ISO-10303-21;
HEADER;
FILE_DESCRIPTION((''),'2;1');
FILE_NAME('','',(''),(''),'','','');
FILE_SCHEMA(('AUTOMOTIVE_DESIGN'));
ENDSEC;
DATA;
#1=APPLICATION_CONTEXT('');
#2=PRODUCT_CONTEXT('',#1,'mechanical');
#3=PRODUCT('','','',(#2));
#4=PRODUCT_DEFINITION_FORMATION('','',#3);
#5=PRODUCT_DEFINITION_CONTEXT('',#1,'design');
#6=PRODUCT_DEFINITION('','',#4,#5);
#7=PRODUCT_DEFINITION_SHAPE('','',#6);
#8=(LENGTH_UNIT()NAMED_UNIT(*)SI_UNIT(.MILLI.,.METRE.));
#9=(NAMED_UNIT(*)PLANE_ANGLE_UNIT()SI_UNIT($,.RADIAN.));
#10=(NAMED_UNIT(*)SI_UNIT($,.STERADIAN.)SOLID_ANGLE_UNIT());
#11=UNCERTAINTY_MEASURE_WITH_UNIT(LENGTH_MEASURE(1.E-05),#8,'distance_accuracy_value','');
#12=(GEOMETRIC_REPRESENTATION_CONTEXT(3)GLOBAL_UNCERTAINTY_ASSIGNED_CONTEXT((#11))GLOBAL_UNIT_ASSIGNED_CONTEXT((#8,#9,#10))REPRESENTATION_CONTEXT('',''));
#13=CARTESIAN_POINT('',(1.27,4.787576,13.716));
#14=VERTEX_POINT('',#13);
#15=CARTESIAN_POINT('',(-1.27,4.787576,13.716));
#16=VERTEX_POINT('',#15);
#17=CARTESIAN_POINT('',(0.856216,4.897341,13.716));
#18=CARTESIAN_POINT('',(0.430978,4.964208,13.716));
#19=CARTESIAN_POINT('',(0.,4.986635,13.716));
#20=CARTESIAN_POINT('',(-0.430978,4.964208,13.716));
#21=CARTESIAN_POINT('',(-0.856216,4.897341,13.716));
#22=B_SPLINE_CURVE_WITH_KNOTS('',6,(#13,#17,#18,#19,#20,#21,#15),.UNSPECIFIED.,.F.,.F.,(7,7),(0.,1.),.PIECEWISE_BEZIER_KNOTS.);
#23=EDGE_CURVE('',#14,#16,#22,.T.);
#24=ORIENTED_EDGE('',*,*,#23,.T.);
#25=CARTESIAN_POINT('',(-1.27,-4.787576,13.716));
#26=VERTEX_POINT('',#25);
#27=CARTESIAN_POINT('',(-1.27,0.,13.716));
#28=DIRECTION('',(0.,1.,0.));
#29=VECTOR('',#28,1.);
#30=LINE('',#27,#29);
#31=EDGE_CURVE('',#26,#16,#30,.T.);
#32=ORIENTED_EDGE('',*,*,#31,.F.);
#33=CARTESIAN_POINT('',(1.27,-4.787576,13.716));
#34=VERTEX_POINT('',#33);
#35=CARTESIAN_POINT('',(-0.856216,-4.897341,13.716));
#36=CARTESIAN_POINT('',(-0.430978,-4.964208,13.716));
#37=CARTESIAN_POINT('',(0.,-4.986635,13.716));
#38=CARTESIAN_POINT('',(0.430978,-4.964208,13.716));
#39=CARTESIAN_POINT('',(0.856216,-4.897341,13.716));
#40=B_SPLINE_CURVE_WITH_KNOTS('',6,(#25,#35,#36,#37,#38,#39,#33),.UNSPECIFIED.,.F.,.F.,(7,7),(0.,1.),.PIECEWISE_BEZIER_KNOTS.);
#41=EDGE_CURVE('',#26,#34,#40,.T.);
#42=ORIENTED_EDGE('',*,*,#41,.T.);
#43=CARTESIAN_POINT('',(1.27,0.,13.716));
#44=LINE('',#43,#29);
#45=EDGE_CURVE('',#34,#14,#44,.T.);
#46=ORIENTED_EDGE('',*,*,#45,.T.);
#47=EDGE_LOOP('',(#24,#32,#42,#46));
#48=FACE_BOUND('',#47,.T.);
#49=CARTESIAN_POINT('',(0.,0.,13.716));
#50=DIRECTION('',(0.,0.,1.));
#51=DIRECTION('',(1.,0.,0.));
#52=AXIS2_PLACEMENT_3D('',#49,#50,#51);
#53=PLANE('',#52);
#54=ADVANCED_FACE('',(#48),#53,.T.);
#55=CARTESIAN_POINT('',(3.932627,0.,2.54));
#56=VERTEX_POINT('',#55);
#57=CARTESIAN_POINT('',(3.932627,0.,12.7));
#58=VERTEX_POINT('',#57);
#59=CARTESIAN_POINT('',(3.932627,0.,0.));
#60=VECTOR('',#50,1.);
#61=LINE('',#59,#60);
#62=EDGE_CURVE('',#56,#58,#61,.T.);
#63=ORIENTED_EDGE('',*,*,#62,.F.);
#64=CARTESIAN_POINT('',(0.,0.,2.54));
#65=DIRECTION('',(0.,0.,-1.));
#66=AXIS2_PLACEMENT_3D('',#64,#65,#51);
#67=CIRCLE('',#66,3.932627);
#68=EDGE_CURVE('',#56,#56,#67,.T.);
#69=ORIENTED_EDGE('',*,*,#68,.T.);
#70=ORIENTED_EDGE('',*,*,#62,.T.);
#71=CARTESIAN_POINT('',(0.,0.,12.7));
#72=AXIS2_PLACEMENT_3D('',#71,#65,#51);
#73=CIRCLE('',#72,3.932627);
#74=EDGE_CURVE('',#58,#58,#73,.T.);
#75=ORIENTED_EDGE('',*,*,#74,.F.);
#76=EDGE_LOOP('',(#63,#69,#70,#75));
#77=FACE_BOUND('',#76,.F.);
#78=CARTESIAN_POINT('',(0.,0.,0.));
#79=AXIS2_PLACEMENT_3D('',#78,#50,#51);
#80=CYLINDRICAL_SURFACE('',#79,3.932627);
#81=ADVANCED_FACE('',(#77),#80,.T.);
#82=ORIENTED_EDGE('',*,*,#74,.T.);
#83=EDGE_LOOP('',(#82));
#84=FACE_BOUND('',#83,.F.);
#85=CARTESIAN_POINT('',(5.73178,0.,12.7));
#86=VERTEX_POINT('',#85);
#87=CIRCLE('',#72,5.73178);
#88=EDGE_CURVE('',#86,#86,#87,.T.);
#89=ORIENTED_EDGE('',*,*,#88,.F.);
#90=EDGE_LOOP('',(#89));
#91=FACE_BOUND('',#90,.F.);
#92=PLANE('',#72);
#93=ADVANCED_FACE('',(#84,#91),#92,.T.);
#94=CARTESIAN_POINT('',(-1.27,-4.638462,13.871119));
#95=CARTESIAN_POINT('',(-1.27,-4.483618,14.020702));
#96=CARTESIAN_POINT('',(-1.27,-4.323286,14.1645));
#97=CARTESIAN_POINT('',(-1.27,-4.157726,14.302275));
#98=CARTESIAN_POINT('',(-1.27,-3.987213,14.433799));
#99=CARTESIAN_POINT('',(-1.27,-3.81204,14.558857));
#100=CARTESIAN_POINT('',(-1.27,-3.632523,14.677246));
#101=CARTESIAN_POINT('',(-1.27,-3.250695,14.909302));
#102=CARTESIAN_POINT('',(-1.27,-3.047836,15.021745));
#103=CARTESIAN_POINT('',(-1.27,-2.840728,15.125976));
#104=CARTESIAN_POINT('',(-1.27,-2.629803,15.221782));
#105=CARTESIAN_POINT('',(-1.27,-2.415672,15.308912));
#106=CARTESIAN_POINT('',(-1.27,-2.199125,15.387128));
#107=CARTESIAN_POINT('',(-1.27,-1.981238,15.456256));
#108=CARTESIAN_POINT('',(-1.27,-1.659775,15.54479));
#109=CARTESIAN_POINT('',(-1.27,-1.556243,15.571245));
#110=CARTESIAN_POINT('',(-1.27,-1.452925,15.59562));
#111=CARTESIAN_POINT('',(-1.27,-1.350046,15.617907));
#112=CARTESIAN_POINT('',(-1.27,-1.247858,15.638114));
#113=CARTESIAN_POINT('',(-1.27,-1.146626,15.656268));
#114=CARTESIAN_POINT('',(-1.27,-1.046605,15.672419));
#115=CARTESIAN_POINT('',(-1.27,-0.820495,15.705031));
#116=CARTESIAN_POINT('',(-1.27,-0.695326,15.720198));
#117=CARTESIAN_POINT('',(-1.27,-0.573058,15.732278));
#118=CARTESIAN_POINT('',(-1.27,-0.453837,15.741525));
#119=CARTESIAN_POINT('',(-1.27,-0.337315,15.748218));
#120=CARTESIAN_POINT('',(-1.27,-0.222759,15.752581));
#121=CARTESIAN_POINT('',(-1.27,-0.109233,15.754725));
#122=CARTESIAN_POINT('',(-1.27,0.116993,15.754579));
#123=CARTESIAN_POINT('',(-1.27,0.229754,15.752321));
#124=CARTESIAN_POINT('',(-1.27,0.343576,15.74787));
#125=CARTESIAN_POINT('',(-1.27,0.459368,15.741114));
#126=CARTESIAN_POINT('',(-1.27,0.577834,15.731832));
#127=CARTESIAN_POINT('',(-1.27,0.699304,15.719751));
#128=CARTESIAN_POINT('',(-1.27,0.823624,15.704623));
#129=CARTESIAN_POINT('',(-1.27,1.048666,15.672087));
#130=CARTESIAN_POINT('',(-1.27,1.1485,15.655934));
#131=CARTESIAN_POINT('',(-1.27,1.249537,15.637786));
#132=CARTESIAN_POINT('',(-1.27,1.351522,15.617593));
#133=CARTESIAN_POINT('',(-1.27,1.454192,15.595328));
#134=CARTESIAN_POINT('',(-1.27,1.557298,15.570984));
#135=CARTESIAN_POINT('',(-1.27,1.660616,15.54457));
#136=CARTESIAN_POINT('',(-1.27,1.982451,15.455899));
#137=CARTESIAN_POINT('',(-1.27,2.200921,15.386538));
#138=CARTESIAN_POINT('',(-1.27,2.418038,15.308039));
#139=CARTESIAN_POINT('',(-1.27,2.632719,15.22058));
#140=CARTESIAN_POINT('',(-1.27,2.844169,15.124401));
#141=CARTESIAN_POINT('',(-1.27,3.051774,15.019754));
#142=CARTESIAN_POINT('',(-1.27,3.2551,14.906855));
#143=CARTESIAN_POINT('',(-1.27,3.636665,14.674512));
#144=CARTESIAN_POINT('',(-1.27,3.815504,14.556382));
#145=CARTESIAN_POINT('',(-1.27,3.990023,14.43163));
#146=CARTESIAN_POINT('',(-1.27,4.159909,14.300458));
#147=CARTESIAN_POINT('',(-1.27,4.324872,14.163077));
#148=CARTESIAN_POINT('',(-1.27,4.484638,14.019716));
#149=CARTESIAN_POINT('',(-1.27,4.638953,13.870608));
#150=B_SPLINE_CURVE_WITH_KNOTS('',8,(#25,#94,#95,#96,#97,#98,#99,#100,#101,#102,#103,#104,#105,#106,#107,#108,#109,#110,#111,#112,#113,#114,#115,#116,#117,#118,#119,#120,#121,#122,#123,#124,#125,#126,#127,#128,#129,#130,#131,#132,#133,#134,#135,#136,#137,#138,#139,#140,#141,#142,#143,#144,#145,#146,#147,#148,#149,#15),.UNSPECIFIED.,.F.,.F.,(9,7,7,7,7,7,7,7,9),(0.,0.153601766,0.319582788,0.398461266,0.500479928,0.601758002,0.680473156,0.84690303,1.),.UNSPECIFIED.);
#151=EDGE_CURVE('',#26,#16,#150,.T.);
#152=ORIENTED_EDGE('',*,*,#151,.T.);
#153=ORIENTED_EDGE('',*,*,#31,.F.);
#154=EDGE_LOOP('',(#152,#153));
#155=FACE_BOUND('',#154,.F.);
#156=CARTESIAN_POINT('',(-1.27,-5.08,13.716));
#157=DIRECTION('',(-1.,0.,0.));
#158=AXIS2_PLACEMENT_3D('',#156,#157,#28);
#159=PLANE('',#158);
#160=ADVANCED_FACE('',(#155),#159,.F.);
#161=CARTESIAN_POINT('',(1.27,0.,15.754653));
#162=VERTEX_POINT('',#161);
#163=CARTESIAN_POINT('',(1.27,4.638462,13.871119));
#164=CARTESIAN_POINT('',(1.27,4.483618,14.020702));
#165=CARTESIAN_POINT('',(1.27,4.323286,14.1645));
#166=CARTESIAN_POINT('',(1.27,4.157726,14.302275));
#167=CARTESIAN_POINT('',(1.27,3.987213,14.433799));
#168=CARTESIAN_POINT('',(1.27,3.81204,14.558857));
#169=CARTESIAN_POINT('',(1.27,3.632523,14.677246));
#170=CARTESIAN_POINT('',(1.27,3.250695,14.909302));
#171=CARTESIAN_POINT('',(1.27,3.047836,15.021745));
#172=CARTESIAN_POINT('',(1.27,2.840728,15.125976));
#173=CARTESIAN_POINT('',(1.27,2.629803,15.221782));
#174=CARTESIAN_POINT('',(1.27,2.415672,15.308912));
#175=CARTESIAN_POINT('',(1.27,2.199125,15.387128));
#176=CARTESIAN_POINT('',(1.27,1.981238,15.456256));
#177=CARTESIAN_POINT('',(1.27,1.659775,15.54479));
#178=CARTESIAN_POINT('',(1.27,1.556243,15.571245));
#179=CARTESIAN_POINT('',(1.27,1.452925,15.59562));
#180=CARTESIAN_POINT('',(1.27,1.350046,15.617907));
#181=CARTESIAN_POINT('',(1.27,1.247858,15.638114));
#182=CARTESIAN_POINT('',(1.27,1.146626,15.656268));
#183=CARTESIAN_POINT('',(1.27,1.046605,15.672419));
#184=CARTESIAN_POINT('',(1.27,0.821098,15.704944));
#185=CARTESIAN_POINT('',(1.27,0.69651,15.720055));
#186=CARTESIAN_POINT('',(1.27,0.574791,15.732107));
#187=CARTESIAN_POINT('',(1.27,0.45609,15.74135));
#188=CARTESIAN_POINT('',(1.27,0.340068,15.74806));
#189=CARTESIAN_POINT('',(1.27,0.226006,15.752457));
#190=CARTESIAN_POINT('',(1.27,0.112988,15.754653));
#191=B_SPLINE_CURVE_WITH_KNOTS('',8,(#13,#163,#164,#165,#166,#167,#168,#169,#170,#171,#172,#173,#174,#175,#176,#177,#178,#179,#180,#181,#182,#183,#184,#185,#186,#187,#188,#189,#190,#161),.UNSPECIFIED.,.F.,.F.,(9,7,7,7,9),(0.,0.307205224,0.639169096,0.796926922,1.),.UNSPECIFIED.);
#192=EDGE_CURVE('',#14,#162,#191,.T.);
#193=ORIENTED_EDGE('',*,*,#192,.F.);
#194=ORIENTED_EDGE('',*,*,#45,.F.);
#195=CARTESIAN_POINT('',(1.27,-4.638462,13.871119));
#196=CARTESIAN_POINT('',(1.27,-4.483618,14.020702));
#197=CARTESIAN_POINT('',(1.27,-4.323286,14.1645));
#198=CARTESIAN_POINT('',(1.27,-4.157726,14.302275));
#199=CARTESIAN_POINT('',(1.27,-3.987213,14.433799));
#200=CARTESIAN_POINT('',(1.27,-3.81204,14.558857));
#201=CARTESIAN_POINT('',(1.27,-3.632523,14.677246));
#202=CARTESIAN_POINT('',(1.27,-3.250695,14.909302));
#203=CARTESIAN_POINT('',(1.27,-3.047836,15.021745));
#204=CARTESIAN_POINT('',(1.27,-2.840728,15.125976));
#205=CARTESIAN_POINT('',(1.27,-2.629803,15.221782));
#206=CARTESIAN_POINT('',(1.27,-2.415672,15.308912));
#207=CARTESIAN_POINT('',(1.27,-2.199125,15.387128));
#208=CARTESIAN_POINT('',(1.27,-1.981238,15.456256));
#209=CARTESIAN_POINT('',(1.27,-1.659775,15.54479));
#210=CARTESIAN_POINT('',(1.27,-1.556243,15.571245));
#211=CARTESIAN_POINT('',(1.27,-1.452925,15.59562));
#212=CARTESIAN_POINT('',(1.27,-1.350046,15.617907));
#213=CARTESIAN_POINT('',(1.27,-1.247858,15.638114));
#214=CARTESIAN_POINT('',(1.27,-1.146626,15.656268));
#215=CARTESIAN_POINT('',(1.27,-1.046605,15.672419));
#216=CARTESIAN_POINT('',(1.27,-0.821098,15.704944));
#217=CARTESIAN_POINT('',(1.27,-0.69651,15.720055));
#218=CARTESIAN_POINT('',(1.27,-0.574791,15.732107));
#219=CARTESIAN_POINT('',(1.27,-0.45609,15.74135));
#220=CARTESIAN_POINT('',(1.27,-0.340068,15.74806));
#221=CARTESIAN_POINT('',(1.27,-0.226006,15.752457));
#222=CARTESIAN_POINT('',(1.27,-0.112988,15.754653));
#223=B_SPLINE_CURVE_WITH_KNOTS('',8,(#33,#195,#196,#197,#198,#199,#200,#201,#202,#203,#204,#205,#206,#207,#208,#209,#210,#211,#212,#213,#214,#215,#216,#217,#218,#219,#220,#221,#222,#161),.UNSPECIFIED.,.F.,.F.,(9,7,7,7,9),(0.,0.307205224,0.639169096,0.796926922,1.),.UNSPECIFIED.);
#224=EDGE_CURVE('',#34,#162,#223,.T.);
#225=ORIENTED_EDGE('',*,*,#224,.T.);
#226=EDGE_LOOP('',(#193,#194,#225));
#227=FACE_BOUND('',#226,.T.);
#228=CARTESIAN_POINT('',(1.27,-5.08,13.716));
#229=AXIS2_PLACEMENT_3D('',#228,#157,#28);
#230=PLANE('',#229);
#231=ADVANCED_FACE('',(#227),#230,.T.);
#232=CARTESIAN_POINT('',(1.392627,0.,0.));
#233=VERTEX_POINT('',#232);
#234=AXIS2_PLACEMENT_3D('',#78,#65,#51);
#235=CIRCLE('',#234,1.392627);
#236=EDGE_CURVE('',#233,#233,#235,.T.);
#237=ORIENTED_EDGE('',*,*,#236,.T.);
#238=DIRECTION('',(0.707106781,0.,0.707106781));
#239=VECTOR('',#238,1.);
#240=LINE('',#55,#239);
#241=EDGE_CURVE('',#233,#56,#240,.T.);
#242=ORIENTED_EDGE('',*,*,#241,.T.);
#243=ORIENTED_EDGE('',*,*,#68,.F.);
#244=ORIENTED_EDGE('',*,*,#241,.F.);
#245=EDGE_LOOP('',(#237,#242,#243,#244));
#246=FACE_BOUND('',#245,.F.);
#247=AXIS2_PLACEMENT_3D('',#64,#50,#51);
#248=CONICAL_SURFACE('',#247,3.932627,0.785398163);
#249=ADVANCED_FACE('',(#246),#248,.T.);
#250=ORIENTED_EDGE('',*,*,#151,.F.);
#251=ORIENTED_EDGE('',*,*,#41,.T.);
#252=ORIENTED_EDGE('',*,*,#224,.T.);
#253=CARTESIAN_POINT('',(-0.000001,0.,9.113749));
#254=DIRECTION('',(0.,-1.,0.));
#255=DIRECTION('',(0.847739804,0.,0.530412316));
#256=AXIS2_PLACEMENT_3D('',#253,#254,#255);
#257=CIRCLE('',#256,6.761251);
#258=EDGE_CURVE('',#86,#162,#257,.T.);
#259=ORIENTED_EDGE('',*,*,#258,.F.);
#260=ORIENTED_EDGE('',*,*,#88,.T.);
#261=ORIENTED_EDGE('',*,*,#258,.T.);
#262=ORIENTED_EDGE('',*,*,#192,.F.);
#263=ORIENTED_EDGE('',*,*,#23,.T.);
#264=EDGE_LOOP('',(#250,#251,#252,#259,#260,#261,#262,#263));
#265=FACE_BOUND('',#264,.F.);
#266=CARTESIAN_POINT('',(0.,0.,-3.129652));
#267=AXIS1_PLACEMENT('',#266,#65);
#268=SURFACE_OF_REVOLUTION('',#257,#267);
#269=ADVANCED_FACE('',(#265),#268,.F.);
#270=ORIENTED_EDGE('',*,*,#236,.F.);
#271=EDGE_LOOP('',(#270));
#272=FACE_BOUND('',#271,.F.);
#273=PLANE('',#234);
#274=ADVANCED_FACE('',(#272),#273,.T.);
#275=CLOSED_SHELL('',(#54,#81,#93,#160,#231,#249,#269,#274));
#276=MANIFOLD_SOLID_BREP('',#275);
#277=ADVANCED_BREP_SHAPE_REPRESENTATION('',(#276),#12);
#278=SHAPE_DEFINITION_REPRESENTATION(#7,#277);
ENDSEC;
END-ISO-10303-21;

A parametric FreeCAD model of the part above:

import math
import FreeCAD as App
import Part
import Sketcher

V = App.Vector
Q = App.Units.Quantity


def edges_at(feature, points):
    """Names of the edges that pass closest to the given points."""
    edges = feature.Shape.Edges
    near = lambda p: min(range(len(edges)), key=lambda i: edges[i].distToShape(Part.Vertex(*p))[0])
    return sorted({f"Edge{near(p) + 1}" for p in points})


def add_polygon(sketch, points):
    """Adds a closed chain of lines whose ends are joined by coincident constraints."""
    first, n = sketch.GeometryCount, len(points)
    for a, b in zip(points, points[1:] + points[:1]):
        sketch.addGeometry(Part.LineSegment(App.Vector(*a, 0), App.Vector(*b, 0)), False)
    for i in range(n):
        sketch.addConstraint(Sketcher.Constraint("Coincident", first + i, 2, first + (i + 1) % n, 1))

doc = App.newDocument("Part")
body = doc.addObject("PartDesign::Body", "Body")

# Sketch on XZ plane
sketch1 = doc.addObject("Sketcher::SketchObject", "Sketch")
body.addObject(sketch1)
sketch1.AttachmentSupport = (doc.XZ_Plane, [""])
sketch1.MapMode = "FlatFace"
sketch1.addGeometry([
    Part.LineSegment(V(0, 0, 0), V(3.9, 0, 0)),  # 0
    Part.LineSegment(V(3.9, 0, 0), V(3.9, 12.7, 0)),  # 1
    Part.LineSegment(V(3.9, 12.7, 0), V(5.7, 12.7, 0)),  # 2
    Part.ArcOfCircle(Part.Circle(V(0, 9.1, 0), V(0, 0, 1), 6.8), math.radians(32), math.radians(90)),  # 3
    Part.LineSegment(V(0, 15.9, 0), V(0, 0, 0)),  # 4
], False)
sketch1.addConstraint([
    Sketcher.Constraint("Coincident", 0, 2, 1, 1),
    Sketcher.Constraint("Coincident", 1, 2, 2, 1),
    Sketcher.Constraint("Coincident", 2, 2, 3, 1),
    Sketcher.Constraint("Coincident", 3, 2, 4, 1),
    Sketcher.Constraint("Coincident", 4, 2, 0, 1),
    Sketcher.Constraint("Horizontal", 0),
    Sketcher.Constraint("Vertical", 1),
    Sketcher.Constraint("Horizontal", 2),
    Sketcher.Constraint("Vertical", 4),
    Sketcher.Constraint("Coincident", 4, 2, -1, 1),
    Sketcher.Constraint("PointOnObject", 3, 3, -2),
    Sketcher.Constraint("DistanceY", 1, 1, 1, 2, Q("0.5 in")),
    Sketcher.Constraint("DistanceY", 4, 2, 4, 1, Q("0.625 in")),
    Sketcher.Constraint("Radius", 3, 6.761251),
    Sketcher.Constraint("DistanceX", 0, 1, 0, 2, 3.932627),
])
revolution = doc.addObject("PartDesign::Revolution", "Revolution")
body.addObject(revolution)
revolution.Profile = sketch1
revolution.ReferenceAxis = (sketch1, ["V_Axis"])
revolution.Angle = 360

# Sketch on XY plane
sketch2 = doc.addObject("Sketcher::SketchObject", "Sketch001")
body.addObject(sketch2)
sketch2.AttachmentSupport = (doc.XY_Plane, [""])
sketch2.MapMode = "FlatFace"
sketch2.AttachmentOffset = App.Placement(V(0, 0, 0.54 * 25.4), App.Rotation())
add_polygon(sketch2, [(-1.3, 5.1), (-1.3, -5.1), (1.3, -5.1), (1.3, 5.1)])  # lines 0-3
sketch2.addConstraint([
    Sketcher.Constraint("Vertical", 0),
    Sketcher.Constraint("Horizontal", 1),
    Sketcher.Constraint("Vertical", 2),
    Sketcher.Constraint("Horizontal", 3),
    Sketcher.Constraint("Symmetric", 0, 2, 2, 2, -1, 1),
    Sketcher.Constraint("DistanceX", 1, 1, 1, 2, Q("0.1 in")),
    Sketcher.Constraint("DistanceY", 0, 2, 0, 1, Q("0.4 in")),
])
pocket1 = doc.addObject("PartDesign::Pocket", "Pocket")
body.addObject(pocket1)
pocket1.Profile = sketch2
pocket1.Length = Q("1 in")
pocket1.Reversed = True
doc.recompute()

chamfer = doc.addObject("PartDesign::Chamfer", "Chamfer")
body.addObject(chamfer)
chamfer.Base = (pocket1, edges_at(pocket1, [(-3.933, 0, 0)]))
chamfer.Size = Q("0.1 in")

doc.recompute()
